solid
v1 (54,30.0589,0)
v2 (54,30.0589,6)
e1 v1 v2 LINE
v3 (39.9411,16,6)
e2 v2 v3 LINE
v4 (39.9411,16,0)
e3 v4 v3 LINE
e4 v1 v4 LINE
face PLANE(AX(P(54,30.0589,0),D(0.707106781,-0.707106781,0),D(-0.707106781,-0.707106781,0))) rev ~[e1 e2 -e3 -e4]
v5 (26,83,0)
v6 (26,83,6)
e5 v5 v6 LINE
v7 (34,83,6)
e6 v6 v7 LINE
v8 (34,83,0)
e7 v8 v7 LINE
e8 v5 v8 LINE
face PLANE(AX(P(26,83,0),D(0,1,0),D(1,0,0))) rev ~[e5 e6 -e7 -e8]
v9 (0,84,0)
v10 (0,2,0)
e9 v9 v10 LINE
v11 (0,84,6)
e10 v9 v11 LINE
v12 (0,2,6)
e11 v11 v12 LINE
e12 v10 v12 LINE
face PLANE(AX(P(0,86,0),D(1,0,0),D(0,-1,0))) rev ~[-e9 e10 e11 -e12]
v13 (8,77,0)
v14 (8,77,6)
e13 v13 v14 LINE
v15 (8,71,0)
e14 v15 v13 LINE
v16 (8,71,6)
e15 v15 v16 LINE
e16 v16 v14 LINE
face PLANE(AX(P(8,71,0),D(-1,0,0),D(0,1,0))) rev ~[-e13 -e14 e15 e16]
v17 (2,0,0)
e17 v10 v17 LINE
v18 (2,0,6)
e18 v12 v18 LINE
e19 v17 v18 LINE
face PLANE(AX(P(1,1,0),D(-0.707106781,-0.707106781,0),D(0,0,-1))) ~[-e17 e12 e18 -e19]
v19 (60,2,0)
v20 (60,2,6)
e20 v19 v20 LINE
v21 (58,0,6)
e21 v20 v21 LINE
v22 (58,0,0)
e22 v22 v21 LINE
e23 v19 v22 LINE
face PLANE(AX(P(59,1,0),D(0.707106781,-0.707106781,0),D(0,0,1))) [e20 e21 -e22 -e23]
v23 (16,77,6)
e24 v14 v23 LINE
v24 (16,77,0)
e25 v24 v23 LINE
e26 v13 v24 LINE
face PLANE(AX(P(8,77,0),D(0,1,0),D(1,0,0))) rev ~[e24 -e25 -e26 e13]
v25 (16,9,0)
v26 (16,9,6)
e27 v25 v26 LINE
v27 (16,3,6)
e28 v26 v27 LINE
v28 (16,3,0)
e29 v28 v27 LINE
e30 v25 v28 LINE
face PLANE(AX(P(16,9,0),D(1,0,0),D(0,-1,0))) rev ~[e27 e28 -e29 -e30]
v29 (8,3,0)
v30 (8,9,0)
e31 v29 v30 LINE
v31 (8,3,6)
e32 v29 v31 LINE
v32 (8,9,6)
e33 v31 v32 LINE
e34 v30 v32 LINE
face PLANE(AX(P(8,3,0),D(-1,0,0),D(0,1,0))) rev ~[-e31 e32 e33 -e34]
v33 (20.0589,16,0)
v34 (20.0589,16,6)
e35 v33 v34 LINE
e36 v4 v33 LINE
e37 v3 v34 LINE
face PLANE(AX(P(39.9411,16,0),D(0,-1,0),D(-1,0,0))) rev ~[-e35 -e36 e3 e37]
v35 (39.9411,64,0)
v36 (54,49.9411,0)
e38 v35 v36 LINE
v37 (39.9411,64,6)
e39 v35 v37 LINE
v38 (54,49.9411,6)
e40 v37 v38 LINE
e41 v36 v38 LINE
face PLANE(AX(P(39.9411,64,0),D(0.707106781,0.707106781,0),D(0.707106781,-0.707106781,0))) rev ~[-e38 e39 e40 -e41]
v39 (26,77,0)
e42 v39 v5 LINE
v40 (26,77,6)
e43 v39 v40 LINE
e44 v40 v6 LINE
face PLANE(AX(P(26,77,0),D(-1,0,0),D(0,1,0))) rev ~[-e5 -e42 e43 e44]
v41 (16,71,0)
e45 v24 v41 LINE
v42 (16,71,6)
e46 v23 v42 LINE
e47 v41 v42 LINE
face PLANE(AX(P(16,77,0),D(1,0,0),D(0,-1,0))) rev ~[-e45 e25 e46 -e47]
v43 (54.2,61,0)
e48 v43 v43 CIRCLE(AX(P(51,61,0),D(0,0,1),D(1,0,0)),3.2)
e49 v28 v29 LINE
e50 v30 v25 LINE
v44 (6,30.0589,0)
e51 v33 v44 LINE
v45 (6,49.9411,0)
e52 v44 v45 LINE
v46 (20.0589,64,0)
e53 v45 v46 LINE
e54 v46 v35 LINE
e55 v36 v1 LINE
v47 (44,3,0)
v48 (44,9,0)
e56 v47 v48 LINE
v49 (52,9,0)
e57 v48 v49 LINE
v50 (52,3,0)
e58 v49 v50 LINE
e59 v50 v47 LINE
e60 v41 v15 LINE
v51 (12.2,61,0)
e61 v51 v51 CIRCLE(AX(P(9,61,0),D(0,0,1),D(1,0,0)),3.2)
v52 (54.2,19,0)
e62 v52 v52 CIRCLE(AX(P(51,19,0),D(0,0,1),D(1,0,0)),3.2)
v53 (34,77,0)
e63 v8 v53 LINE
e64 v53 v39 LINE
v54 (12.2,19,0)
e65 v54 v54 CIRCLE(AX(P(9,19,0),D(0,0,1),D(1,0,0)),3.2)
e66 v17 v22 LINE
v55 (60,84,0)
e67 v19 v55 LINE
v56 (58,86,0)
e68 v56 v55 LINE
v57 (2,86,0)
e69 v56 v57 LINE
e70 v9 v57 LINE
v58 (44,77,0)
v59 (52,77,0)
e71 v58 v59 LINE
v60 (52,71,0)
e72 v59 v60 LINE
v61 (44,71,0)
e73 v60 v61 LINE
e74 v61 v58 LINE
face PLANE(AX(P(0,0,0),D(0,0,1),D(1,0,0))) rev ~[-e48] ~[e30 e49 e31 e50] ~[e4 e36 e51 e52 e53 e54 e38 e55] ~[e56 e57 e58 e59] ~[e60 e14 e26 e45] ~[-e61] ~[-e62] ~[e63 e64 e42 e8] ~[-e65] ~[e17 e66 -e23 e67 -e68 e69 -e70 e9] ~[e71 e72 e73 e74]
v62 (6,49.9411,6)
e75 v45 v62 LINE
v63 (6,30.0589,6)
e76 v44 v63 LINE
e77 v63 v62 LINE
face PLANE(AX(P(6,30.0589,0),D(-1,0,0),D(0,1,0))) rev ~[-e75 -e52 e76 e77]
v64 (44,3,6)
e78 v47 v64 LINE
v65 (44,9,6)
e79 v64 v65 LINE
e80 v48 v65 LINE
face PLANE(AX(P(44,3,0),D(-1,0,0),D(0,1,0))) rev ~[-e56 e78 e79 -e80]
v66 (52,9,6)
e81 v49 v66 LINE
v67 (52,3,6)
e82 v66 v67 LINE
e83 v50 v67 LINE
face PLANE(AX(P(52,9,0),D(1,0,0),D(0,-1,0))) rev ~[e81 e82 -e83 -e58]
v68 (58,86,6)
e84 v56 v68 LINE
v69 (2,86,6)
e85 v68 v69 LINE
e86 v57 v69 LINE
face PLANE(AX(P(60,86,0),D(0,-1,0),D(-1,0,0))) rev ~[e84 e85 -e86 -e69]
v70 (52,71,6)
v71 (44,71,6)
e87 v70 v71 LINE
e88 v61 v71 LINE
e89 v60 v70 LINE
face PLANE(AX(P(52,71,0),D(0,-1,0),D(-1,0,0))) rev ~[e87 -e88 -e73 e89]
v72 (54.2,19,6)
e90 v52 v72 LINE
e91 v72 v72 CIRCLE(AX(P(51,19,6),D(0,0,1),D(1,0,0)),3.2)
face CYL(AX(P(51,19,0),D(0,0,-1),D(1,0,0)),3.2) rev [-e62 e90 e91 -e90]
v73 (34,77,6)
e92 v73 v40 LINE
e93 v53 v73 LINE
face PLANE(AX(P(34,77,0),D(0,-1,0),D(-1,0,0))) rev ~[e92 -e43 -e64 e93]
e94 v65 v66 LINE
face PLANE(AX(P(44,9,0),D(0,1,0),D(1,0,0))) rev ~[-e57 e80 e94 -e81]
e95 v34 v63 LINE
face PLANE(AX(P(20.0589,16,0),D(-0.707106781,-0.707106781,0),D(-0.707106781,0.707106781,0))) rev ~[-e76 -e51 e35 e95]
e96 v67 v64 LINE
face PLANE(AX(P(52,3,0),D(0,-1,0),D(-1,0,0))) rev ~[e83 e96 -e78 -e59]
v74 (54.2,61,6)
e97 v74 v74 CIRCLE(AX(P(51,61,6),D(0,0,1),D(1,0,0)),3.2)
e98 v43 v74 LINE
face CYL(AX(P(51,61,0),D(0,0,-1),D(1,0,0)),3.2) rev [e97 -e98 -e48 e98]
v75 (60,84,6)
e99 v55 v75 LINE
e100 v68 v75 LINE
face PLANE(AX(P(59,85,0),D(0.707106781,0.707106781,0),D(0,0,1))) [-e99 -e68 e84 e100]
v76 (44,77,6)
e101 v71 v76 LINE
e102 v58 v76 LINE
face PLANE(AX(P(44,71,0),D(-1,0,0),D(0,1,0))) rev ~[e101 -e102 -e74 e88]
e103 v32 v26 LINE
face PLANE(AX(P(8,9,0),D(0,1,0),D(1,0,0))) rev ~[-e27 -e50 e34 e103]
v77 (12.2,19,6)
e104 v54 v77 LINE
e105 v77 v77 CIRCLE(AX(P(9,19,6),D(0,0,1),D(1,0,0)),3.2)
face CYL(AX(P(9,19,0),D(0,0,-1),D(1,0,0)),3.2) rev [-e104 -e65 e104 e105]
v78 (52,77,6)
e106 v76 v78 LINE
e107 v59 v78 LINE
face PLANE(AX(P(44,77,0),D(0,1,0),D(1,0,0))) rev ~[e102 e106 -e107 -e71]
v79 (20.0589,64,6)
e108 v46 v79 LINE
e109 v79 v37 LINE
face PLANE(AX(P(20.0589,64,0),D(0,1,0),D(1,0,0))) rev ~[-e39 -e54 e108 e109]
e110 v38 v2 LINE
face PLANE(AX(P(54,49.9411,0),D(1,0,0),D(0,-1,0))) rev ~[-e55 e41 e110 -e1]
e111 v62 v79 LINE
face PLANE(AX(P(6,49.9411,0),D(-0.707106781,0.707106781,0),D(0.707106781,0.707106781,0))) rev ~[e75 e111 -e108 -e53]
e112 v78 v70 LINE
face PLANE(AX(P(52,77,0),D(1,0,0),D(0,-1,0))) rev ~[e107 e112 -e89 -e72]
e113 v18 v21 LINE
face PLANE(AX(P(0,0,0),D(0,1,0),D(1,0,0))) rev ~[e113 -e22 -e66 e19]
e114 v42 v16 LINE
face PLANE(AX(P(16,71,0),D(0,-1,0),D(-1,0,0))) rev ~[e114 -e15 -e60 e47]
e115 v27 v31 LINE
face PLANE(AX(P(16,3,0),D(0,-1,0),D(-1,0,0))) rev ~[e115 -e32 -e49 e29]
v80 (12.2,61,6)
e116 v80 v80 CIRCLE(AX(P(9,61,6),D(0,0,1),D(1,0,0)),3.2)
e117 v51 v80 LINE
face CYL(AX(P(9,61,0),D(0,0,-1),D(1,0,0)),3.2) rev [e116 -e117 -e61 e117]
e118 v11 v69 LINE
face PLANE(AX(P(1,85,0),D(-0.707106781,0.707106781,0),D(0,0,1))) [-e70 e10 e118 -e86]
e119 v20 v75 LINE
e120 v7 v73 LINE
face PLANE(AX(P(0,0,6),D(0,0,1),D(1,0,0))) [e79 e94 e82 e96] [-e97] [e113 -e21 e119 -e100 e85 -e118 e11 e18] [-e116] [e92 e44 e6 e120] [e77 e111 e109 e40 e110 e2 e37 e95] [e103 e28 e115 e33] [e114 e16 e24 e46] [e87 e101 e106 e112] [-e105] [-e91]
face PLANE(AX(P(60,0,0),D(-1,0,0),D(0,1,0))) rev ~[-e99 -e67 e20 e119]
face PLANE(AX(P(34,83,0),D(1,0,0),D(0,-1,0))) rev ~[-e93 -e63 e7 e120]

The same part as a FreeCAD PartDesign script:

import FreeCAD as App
import Part
import Sketcher
from FreeCAD import Vector
Q = App.Units.Quantity


def edges_at(feature, points):
    """Names of the edges that pass closest to the given points."""
    edges = feature.Shape.Edges
    near = lambda p: min(range(len(edges)), key=lambda i: edges[i].distToShape(Part.Vertex(*p))[0])
    return sorted({f"Edge{near(p) + 1}" for p in points})


def add_polygon(sketch, points):
    """Adds a closed chain of lines whose ends are joined by coincident constraints."""
    first, n = sketch.GeometryCount, len(points)
    for a, b in zip(points, points[1:] + points[:1]):
        sketch.addGeometry(Part.LineSegment(App.Vector(*a, 0), App.Vector(*b, 0)), False)
    for i in range(n):
        sketch.addConstraint(Sketcher.Constraint("Coincident", first + i, 2, first + (i + 1) % n, 1))

doc = App.newDocument("Part")
body = doc.addObject("PartDesign::Body", "Body")

sketch1 = body.newObject("Sketcher::SketchObject", "Sketch")
sketch1.AttachmentSupport = (doc.getObject("XY_Plane"), [""])
sketch1.MapMode = "FlatFace"
add_polygon(sketch1, [(0, 86), (0, 0), (60, 0), (60, 86)])
add_polygon(sketch1, [(8, 3), (8, 9), (16, 9), (16, 3)])
sketch1.addGeometry(Part.Circle(Vector(9, 19, 0), Vector(0, 0, 1), 3.2), False)
add_polygon(sketch1, [(44, 3), (44, 9), (52, 9), (52, 3)])
sketch1.addGeometry(Part.Circle(Vector(51, 19, 0), Vector(0, 0, 1), 3.2), False)
add_polygon(sketch1, [(54, 49.9411), (54, 30.0589), (39.9411, 16), (20.0589, 16), (6, 30.0589), (6, 49.9411), (20.0589, 64), (39.9411, 64)])
sketch1.addGeometry(Part.Circle(Vector(9, 61, 0), Vector(0, 0, 1), 3.2), False)
add_polygon(sketch1, [(8, 71), (8, 77), (16, 77), (16, 71)])
sketch1.addGeometry(Part.Circle(Vector(51, 61, 0), Vector(0, 0, 1), 3.2), False)
add_polygon(sketch1, [(26, 77), (26, 83), (34, 83), (34, 77)])
add_polygon(sketch1, [(44, 71), (44, 77), (52, 77), (52, 71)])
sketch1.addConstraint([
    Sketcher.Constraint("Vertical", 0),
    Sketcher.Constraint("Horizontal", 1),
    Sketcher.Constraint("Vertical", 2),
    Sketcher.Constraint("Horizontal", 3),
    Sketcher.Constraint("Vertical", 4),
    Sketcher.Constraint("Horizontal", 5),
    Sketcher.Constraint("Vertical", 6),
    Sketcher.Constraint("Horizontal", 7),
    Sketcher.Constraint("Vertical", 9),
    Sketcher.Constraint("Horizontal", 10),
    Sketcher.Constraint("Vertical", 11),
    Sketcher.Constraint("Horizontal", 12),
    Sketcher.Constraint("Vertical", 14),
    Sketcher.Constraint("Horizontal", 16),
    Sketcher.Constraint("Vertical", 18),
    Sketcher.Constraint("Horizontal", 20),
    Sketcher.Constraint("Vertical", 23),
    Sketcher.Constraint("Horizontal", 24),
    Sketcher.Constraint("Vertical", 25),
    Sketcher.Constraint("Horizontal", 26),
    Sketcher.Constraint("Vertical", 28),
    Sketcher.Constraint("Horizontal", 29),
    Sketcher.Constraint("Vertical", 30),
    Sketcher.Constraint("Horizontal", 31),
    Sketcher.Constraint("Vertical", 32),
    Sketcher.Constraint("Horizontal", 33),
    Sketcher.Constraint("Vertical", 34),
    Sketcher.Constraint("Horizontal", 35),
    Sketcher.Constraint("Coincident", 0, 2, -1, 1),
    Sketcher.Constraint("Equal", 8, 13),
    Sketcher.Constraint("Equal", 13, 22),
    Sketcher.Constraint("Equal", 22, 27),
    Sketcher.Constraint("Perpendicular", 15, 17),
    Sketcher.Constraint("Perpendicular", 17, 19),
    Sketcher.Constraint("Perpendicular", 19, 21),
    Sketcher.Constraint("Horizontal", 8, 3, 13, 3),
    Sketcher.Constraint("Horizontal", 22, 3, 27, 3),
    Sketcher.Constraint("Horizontal", 5, 2, 9, 2),
    Sketcher.Constraint("Horizontal", 7, 2, 11, 2),
    Sketcher.Constraint("Horizontal", 14, 2, 17, 2),
    Sketcher.Constraint("Horizontal", 18, 2, 21, 2),
    Sketcher.Constraint("Horizontal", 24, 2, 30, 2),
    Sketcher.Constraint("Horizontal", 31, 2, 32, 2),
    Sketcher.Constraint("Horizontal", 26, 2, 34, 2),
    Sketcher.Constraint("Vertical", 8, 3, 22, 3),
    Sketcher.Constraint("Vertical", 13, 3, 27, 3),
    Sketcher.Constraint("Vertical", 16, 2, 19, 2),
    Sketcher.Constraint("Vertical", 15, 2, 20, 2),
    Sketcher.Constraint("Vertical", 7, 2, 23, 2),
    Sketcher.Constraint("Vertical", 6, 2, 24, 2),
    Sketcher.Constraint("Vertical", 12, 2, 32, 2),
    Sketcher.Constraint("Vertical", 11, 2, 33, 2),
    Sketcher.Constraint("Equal", 7, 10),
    Sketcher.Constraint("Equal", 26, 29),
    Sketcher.Constraint("Equal", 20, 14),
    Sketcher.Constraint("Equal", 11, 23),
    Sketcher.Constraint("Equal", 25, 28),
    Sketcher.Constraint("Diameter", 8, Q("6.4 mm")),
    Sketcher.Constraint("DistanceX", 5, 1, 5, 2, Q("8 mm")),
    Sketcher.Constraint("DistanceY", 0, 2, 0, 1, Q("86 mm")),
    Sketcher.Constraint("DistanceY", 4, 1, 4, 2, Q("6 mm")),
    Sketcher.Constraint("DistanceX", -1, 1, 4, 2, Q("8 mm")),
    Sketcher.Constraint("DistanceY", -1, 1, 6, 2, Q("3 mm")),
    Sketcher.Constraint("DistanceX", -1, 1, 17, 2, Q("6 mm")),
    Sketcher.Constraint("DistanceX", 8, 3, 13, 3, Q("42 mm")),
    Sketcher.Constraint("DistanceY", 8, 3, 22, 3, Q("42 mm")),
    Sketcher.Constraint("DistanceX", 10, 2, 1, 2, Q("8 mm")),
    Sketcher.Constraint("DistanceX", 13, 3, 14, 2, Q("3 mm")),
    Sketcher.Constraint("DistanceY", 15, 2, 13, 3, Q("3 mm")),
    Sketcher.Constraint("DistanceX", 17, 2, 8, 3, Q("3 mm")),
    Sketcher.Constraint("DistanceX", 21, 2, 2, 2, Q("6 mm")),
    Sketcher.Constraint("DistanceY", -1, 1, 8, 3, Q("19 mm")),
    Sketcher.Constraint("DistanceY", -1, 1, 23, 2, Q("77 mm")),
    Sketcher.Constraint("DistanceX", -1, 1, 28, 2, Q("26 mm")),
    Sketcher.Constraint("DistanceX", 16, 2, 16, 1, Q("19.8822 mm")),
])
pad1 = body.newObject("PartDesign::Pad", "Pad")
pad1.Profile = sketch1
pad1.Length = 6
doc.recompute()

chamfer = body.newObject("PartDesign::Chamfer", "Chamfer")
chamfer.Base = (pad1, edges_at(pad1, [
    (0, 0, 3),
    (60, 0, 3),
    (60, 86, 3),
    (0, 86, 3),
]))
chamfer.Size = 2

doc.recompute()
